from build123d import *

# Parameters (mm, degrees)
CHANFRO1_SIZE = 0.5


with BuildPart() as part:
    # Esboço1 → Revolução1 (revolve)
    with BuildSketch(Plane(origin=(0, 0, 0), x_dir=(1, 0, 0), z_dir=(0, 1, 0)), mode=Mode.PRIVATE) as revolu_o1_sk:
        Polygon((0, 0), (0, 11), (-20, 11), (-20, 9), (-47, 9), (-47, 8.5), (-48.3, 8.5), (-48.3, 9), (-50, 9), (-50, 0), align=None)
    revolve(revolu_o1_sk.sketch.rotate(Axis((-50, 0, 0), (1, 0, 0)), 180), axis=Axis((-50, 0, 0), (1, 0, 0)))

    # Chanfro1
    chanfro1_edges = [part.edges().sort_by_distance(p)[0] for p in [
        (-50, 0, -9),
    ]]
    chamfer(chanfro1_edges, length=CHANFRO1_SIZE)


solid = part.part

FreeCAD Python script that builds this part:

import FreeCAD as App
import Part
import Sketcher
from FreeCAD import Vector


def edges_at(feature, points):
    """Names of the edges that pass closest to the given points."""
    edges = feature.Shape.Edges
    near = lambda p: min(range(len(edges)), key=lambda i: edges[i].distToShape(Part.Vertex(*p))[0])
    return sorted({f"Edge{near(p) + 1}" for p in points})

doc = App.newDocument("Part")
body = doc.addObject("PartDesign::Body", "Body")

sketch1 = doc.addObject("Sketcher::SketchObject", "Sketch")
body.addObject(sketch1)
sketch1.AttachmentSupport = (doc.XZ_Plane, [""])
sketch1.MapMode = "FlatFace"
sketch1.addGeometry(Part.LineSegment(Vector(0, 0, 0), Vector(0, -11, 0)), False)
sketch1.addGeometry(Part.LineSegment(Vector(0, -11, 0), Vector(-20, -11, 0)), False)
sketch1.addGeometry(Part.LineSegment(Vector(-20, -11, 0), Vector(-20, -9, 0)), False)
sketch1.addGeometry(Part.LineSegment(Vector(-20, -9, 0), Vector(-47, -9, 0)), False)
sketch1.addGeometry(Part.LineSegment(Vector(-47, -9, 0), Vector(-47, -8.5, 0)), False)
sketch1.addGeometry(Part.LineSegment(Vector(-47, -8.5, 0), Vector(-48.3, -8.5, 0)), False)
sketch1.addGeometry(Part.LineSegment(Vector(-48.3, -8.5, 0), Vector(-48.3, -9, 0)), False)
sketch1.addGeometry(Part.LineSegment(Vector(-48.3, -9, 0), Vector(-50, -9, 0)), False)
sketch1.addGeometry(Part.LineSegment(Vector(-50, -9, 0), Vector(-50, 0, 0)), False)
sketch1.addGeometry(Part.LineSegment(Vector(-50, 0, 0), Vector(0, 0, 0)), False)
sketch1.addConstraint(Sketcher.Constraint("Coincident", 0, 2, 1, 1))
sketch1.addConstraint(Sketcher.Constraint("Coincident", 1, 2, 2, 1))
sketch1.addConstraint(Sketcher.Constraint("Coincident", 2, 2, 3, 1))
sketch1.addConstraint(Sketcher.Constraint("Coincident", 3, 2, 4, 1))
sketch1.addConstraint(Sketcher.Constraint("Coincident", 4, 2, 5, 1))
sketch1.addConstraint(Sketcher.Constraint("Coincident", 5, 2, 6, 1))
sketch1.addConstraint(Sketcher.Constraint("Coincident", 6, 2, 7, 1))
sketch1.addConstraint(Sketcher.Constraint("Coincident", 7, 2, 8, 1))
sketch1.addConstraint(Sketcher.Constraint("Coincident", 8, 2, 9, 1))
sketch1.addConstraint(Sketcher.Constraint("Coincident", 9, 2, 0, 1))
sketch1.addConstraint(Sketcher.Constraint("Vertical", 0))
sketch1.addConstraint(Sketcher.Constraint("Horizontal", 1))
sketch1.addConstraint(Sketcher.Constraint("Vertical", 2))
sketch1.addConstraint(Sketcher.Constraint("Horizontal", 3))
sketch1.addConstraint(Sketcher.Constraint("Vertical", 4))
sketch1.addConstraint(Sketcher.Constraint("Horizontal", 5))
sketch1.addConstraint(Sketcher.Constraint("Vertical", 6))
sketch1.addConstraint(Sketcher.Constraint("Horizontal", 7))
sketch1.addConstraint(Sketcher.Constraint("Vertical", 8))
sketch1.addConstraint(Sketcher.Constraint("Horizontal", 9))
sketch1.addConstraint(Sketcher.Constraint("Coincident", 9, 2, -1, 1))
sketch1.addConstraint(Sketcher.Constraint("Horizontal", 3, 2, 6, 2))
sketch1.addConstraint(Sketcher.Constraint("DistanceX", 1, 2, 1, 1, 20.0))
sketch1.addConstraint(Sketcher.Constraint("DistanceX", 3, 2, 3, 1, 27.0))
sketch1.addConstraint(Sketcher.Constraint("DistanceX", 9, 1, 9, 2, 50.0))
sketch1.addConstraint(Sketcher.Constraint("DistanceY", 0, 2, 0, 1, 11.0))
sketch1.addConstraint(Sketcher.Constraint("DistanceY", 2, 1, 2, 2, 2.0))
sketch1.addConstraint(Sketcher.Constraint("DistanceX", 5, 2, 5, 1, 1.3))
sketch1.addConstraint(Sketcher.Constraint("DistanceY", 4, 1, 4, 2, 0.5))
revolution = doc.addObject("PartDesign::Revolution", "Revolution")
body.addObject(revolution)
revolution.Profile = sketch1
revolution.ReferenceAxis = (sketch1, ["H_Axis"])
revolution.Angle = 360
doc.recompute()

chamfer = doc.addObject("PartDesign::Chamfer", "Chamfer")
body.addObject(chamfer)
chamfer.Base = (revolution, edges_at(revolution, [(-50, 0, -9)]))
chamfer.Size = 0.5

doc.recompute()
